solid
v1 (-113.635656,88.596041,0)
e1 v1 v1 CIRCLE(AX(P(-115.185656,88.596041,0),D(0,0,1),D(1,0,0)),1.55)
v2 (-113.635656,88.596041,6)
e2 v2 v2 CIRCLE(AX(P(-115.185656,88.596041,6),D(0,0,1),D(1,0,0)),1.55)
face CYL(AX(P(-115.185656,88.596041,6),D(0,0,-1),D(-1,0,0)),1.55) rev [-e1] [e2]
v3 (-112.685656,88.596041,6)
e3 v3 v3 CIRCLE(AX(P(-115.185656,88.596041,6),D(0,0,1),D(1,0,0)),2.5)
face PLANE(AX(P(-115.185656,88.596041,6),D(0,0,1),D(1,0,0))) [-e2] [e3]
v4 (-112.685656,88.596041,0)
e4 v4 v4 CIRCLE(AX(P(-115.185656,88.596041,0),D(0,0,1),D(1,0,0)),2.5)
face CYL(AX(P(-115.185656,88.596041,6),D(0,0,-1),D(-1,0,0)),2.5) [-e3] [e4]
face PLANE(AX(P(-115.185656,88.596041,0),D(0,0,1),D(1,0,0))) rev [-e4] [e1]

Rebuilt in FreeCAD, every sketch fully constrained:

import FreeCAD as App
import Part
import Sketcher

V = App.Vector

doc = App.newDocument("Part")
body = doc.addObject("PartDesign::Body", "Body")

# Sketch on XY plane
sketch1 = body.newObject("Sketcher::SketchObject", "Sketch")
sketch1.AttachmentSupport = (doc.getObject("XY_Plane"), [""])
sketch1.MapMode = "FlatFace"
sketch1.addGeometry([
    Part.Circle(V(-115.2, 88.6, 0), V(0, 0, 1), 2.5),
    Part.Circle(V(-115.2, 88.6, 0), V(0, 0, 1), 1.6),
], False)
sketch1.addConstraint([
    Sketcher.Constraint("Coincident", 1, 3, 0, 3),
    Sketcher.Constraint("Diameter", 0, 5.0),
    Sketcher.Constraint("Diameter", 1, 3.1),
    Sketcher.Constraint("DistanceY", -1, 1, 0, 3, 88.596041),
    Sketcher.Constraint("DistanceX", 0, 3, -1, 1, 115.185656),
])
pad1 = body.newObject("PartDesign::Pad", "Pad")
pad1.Profile = sketch1
pad1.Length = 6

doc.recompute()
